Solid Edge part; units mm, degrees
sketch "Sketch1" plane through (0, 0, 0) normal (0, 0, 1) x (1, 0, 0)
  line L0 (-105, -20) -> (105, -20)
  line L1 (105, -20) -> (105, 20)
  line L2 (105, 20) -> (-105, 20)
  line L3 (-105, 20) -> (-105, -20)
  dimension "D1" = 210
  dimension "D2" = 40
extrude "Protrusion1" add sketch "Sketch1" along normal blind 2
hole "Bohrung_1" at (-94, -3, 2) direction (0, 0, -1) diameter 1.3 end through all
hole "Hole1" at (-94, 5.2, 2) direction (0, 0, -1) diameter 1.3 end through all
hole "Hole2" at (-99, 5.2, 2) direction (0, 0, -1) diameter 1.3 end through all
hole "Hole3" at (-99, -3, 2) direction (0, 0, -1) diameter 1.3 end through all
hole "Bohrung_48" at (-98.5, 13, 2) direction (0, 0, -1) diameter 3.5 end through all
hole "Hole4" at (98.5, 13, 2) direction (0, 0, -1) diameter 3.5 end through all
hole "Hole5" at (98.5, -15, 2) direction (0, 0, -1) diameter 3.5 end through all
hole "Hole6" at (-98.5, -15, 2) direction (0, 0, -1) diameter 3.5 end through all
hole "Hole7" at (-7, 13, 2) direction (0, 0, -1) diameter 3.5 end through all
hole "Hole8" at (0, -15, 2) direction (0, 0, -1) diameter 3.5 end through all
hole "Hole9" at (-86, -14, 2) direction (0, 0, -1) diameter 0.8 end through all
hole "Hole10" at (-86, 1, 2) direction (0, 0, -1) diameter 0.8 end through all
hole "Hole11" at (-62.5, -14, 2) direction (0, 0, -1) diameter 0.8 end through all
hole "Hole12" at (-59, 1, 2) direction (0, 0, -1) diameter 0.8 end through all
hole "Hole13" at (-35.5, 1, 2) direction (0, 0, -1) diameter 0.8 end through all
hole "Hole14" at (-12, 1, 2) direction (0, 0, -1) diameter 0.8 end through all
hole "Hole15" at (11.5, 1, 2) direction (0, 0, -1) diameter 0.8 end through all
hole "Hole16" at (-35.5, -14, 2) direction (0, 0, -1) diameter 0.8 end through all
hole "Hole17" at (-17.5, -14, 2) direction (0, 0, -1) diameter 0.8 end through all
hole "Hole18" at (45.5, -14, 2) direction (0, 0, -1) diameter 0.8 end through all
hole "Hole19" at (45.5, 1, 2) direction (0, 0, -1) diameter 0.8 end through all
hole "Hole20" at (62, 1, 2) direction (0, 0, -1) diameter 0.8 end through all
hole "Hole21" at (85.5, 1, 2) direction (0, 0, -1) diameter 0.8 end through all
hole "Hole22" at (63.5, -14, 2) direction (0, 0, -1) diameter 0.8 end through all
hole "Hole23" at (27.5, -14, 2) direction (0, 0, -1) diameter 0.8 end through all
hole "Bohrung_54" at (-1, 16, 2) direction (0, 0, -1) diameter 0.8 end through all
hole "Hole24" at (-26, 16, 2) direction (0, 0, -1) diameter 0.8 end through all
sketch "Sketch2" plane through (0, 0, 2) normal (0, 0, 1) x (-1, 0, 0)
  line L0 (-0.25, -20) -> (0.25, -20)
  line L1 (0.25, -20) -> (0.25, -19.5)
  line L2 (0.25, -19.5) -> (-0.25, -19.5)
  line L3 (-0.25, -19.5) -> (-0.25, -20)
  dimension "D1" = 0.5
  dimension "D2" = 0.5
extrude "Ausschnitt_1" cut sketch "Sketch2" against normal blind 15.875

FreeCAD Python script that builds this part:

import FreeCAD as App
import Part
import Sketcher
Q = App.Units.Quantity

doc = App.newDocument("Part")
body = doc.addObject("PartDesign::Body", "Body")

# Sketch on XY plane
sketch1 = body.newObject("Sketcher::SketchObject", "Sketch")
sketch1.AttachmentSupport = (doc.getObject("XY_Plane"), [""])
sketch1.MapMode = "FlatFace"
sketch1.addGeometry([
    Part.LineSegment(App.Vector(-105, 20, 0), App.Vector(-105, -20, 0)),
    Part.LineSegment(App.Vector(-105, -20, 0), App.Vector(105, -20, 0)),
    Part.LineSegment(App.Vector(105, -20, 0), App.Vector(105, 20, 0)),
    Part.LineSegment(App.Vector(105, 20, 0), App.Vector(-105, 20, 0)),
], False)
sketch1.addConstraint([
    Sketcher.Constraint("Coincident", 0, 2, 1, 1),
    Sketcher.Constraint("Coincident", 1, 2, 2, 1),
    Sketcher.Constraint("Coincident", 2, 2, 3, 1),
    Sketcher.Constraint("Coincident", 3, 2, 0, 1),
    Sketcher.Constraint("Vertical", 0),
    Sketcher.Constraint("Horizontal", 1),
    Sketcher.Constraint("Vertical", 2),
    Sketcher.Constraint("Horizontal", 3),
    Sketcher.Constraint("Symmetric", 0, 2, 2, 2, -1, 1),
    Sketcher.Constraint("DistanceX", 0, 2, -1, 1, Q("105 mm")),
    Sketcher.Constraint("DistanceY", 0, 2, 0, 1, Q("40 mm")),
])
pad1 = body.newObject("PartDesign::Pad", "Pad")
pad1.Profile = sketch1
pad1.Length = 2

# Sketch on XY plane
sketch2 = body.newObject("Sketcher::SketchObject", "Sketch001")
sketch2.AttachmentSupport = (doc.getObject("XY_Plane"), [""])
sketch2.MapMode = "FlatFace"
sketch2.AttachmentOffset = App.Placement(App.Vector(0, 0, 2), App.Rotation())
sketch2.addGeometry(Part.Circle(App.Vector(-94, -3, 0), App.Vector(0, 0, 1), 0.7), False)
sketch2.addConstraint([
    Sketcher.Constraint("Diameter", 0, Q("1.3 mm")),
    Sketcher.Constraint("DistanceX", 0, 3, -1, 1, Q("94 mm")),
    Sketcher.Constraint("DistanceY", 0, 3, -1, 1, Q("3 mm")),
])
doc.recompute()
hole = body.newObject("PartDesign::Hole", "Hole")
hole.Profile = sketch2
hole.ThreadType = "None"
hole.Diameter = 1.3
hole.DepthType = "ThroughAll"

# Sketch on XY plane
sketch3 = body.newObject("Sketcher::SketchObject", "Sketch002")
sketch3.AttachmentSupport = (doc.getObject("XY_Plane"), [""])
sketch3.MapMode = "FlatFace"
sketch3.AttachmentOffset = App.Placement(App.Vector(0, 0, 2), App.Rotation())
sketch3.addGeometry(Part.Circle(App.Vector(-94, 5.2, 0), App.Vector(0, 0, 1), 0.7), False)
sketch3.addConstraint([
    Sketcher.Constraint("Diameter", 0, Q("1.3 mm")),
    Sketcher.Constraint("DistanceX", 0, 3, -1, 1, Q("94 mm")),
    Sketcher.Constraint("DistanceY", -1, 1, 0, 3, Q("5.2 mm")),
])
doc.recompute()
hole2 = body.newObject("PartDesign::Hole", "Hole001")
hole2.Profile = sketch3
hole2.ThreadType = "None"
hole2.Diameter = 1.3
hole2.DepthType = "ThroughAll"

# Sketch on XY plane
sketch4 = body.newObject("Sketcher::SketchObject", "Sketch003")
sketch4.AttachmentSupport = (doc.getObject("XY_Plane"), [""])
sketch4.MapMode = "FlatFace"
sketch4.AttachmentOffset = App.Placement(App.Vector(0, 0, 2), App.Rotation())
sketch4.addGeometry(Part.Circle(App.Vector(-99, 5.2, 0), App.Vector(0, 0, 1), 0.7), False)
sketch4.addConstraint([
    Sketcher.Constraint("Diameter", 0, Q("1.3 mm")),
    Sketcher.Constraint("DistanceX", 0, 3, -1, 1, Q("99 mm")),
    Sketcher.Constraint("DistanceY", -1, 1, 0, 3, Q("5.2 mm")),
])
doc.recompute()
hole3 = body.newObject("PartDesign::Hole", "Hole002")
hole3.Profile = sketch4
hole3.ThreadType = "None"
hole3.Diameter = 1.3
hole3.DepthType = "ThroughAll"

# Sketch on XY plane
sketch5 = body.newObject("Sketcher::SketchObject", "Sketch004")
sketch5.AttachmentSupport = (doc.getObject("XY_Plane"), [""])
sketch5.MapMode = "FlatFace"
sketch5.AttachmentOffset = App.Placement(App.Vector(0, 0, 2), App.Rotation())
sketch5.addGeometry(Part.Circle(App.Vector(-99, -3, 0), App.Vector(0, 0, 1), 0.7), False)
sketch5.addConstraint([
    Sketcher.Constraint("Diameter", 0, Q("1.3 mm")),
    Sketcher.Constraint("DistanceX", 0, 3, -1, 1, Q("99 mm")),
    Sketcher.Constraint("DistanceY", 0, 3, -1, 1, Q("3 mm")),
])
doc.recompute()
hole4 = body.newObject("PartDesign::Hole", "Hole003")
hole4.Profile = sketch5
hole4.ThreadType = "None"
hole4.Diameter = 1.3
hole4.DepthType = "ThroughAll"

# Sketch on XY plane
sketch6 = body.newObject("Sketcher::SketchObject", "Sketch005")
sketch6.AttachmentSupport = (doc.getObject("XY_Plane"), [""])
sketch6.MapMode = "FlatFace"
sketch6.AttachmentOffset = App.Placement(App.Vector(0, 0, 2), App.Rotation())
sketch6.addGeometry(Part.Circle(App.Vector(-98.5, 13, 0), App.Vector(0, 0, 1), 1.8), False)
sketch6.addConstraint([
    Sketcher.Constraint("Diameter", 0, Q("3.5 mm")),
    Sketcher.Constraint("DistanceY", -1, 1, 0, 3, Q("13 mm")),
    Sketcher.Constraint("DistanceX", 0, 3, -1, 1, Q("98.5 mm")),
])
doc.recompute()
hole5 = body.newObject("PartDesign::Hole", "Hole004")
hole5.Profile = sketch6
hole5.ThreadType = "None"
hole5.Diameter = 3.5
hole5.DepthType = "ThroughAll"

# Sketch on XY plane
sketch7 = body.newObject("Sketcher::SketchObject", "Sketch006")
sketch7.AttachmentSupport = (doc.getObject("XY_Plane"), [""])
sketch7.MapMode = "FlatFace"
sketch7.AttachmentOffset = App.Placement(App.Vector(0, 0, 2), App.Rotation())
sketch7.addGeometry(Part.Circle(App.Vector(98.5, 13, 0), App.Vector(0, 0, 1), 1.8), False)
sketch7.addConstraint([
    Sketcher.Constraint("Diameter", 0, Q("3.5 mm")),
    Sketcher.Constraint("DistanceY", -1, 1, 0, 3, Q("13 mm")),
    Sketcher.Constraint("DistanceX", -1, 1, 0, 3, Q("98.5 mm")),
])
doc.recompute()
hole6 = body.newObject("PartDesign::Hole", "Hole005")
hole6.Profile = sketch7
hole6.ThreadType = "None"
hole6.Diameter = 3.5
hole6.DepthType = "ThroughAll"

# Sketch on XY plane
sketch8 = body.newObject("Sketcher::SketchObject", "Sketch007")
sketch8.AttachmentSupport = (doc.getObject("XY_Plane"), [""])
sketch8.MapMode = "FlatFace"
sketch8.AttachmentOffset = App.Placement(App.Vector(0, 0, 2), App.Rotation())
sketch8.addGeometry(Part.Circle(App.Vector(98.5, -15, 0), App.Vector(0, 0, 1), 1.8), False)
sketch8.addConstraint([
    Sketcher.Constraint("Diameter", 0, Q("3.5 mm")),
    Sketcher.Constraint("DistanceY", 0, 3, -1, 1, Q("15 mm")),
    Sketcher.Constraint("DistanceX", -1, 1, 0, 3, Q("98.5 mm")),
])
doc.recompute()
hole7 = body.newObject("PartDesign::Hole", "Hole006")
hole7.Profile = sketch8
hole7.ThreadType = "None"
hole7.Diameter = 3.5
hole7.DepthType = "ThroughAll"

# Sketch on XY plane
sketch9 = body.newObject("Sketcher::SketchObject", "Sketch008")
sketch9.AttachmentSupport = (doc.getObject("XY_Plane"), [""])
sketch9.MapMode = "FlatFace"
sketch9.AttachmentOffset = App.Placement(App.Vector(0, 0, 2), App.Rotation())
sketch9.addGeometry(Part.Circle(App.Vector(-98.5, -15, 0), App.Vector(0, 0, 1), 1.8), False)
sketch9.addConstraint([
    Sketcher.Constraint("Diameter", 0, Q("3.5 mm")),
    Sketcher.Constraint("DistanceY", 0, 3, -1, 1, Q("15 mm")),
    Sketcher.Constraint("DistanceX", 0, 3, -1, 1, Q("98.5 mm")),
])
doc.recompute()
hole8 = body.newObject("PartDesign::Hole", "Hole007")
hole8.Profile = sketch9
hole8.ThreadType = "None"
hole8.Diameter = 3.5
hole8.DepthType = "ThroughAll"

# Sketch on XY plane
sketch10 = body.newObject("Sketcher::SketchObject", "Sketch009")
sketch10.AttachmentSupport = (doc.getObject("XY_Plane"), [""])
sketch10.MapMode = "FlatFace"
sketch10.AttachmentOffset = App.Placement(App.Vector(0, 0, 2), App.Rotation())
sketch10.addGeometry(Part.Circle(App.Vector(-7, 13, 0), App.Vector(0, 0, 1), 1.8), False)
sketch10.addConstraint([
    Sketcher.Constraint("Diameter", 0, Q("3.5 mm")),
    Sketcher.Constraint("DistanceX", 0, 3, -1, 1, Q("7 mm")),
    Sketcher.Constraint("DistanceY", -1, 1, 0, 3, Q("13 mm")),
])
doc.recompute()
hole9 = body.newObject("PartDesign::Hole", "Hole008")
hole9.Profile = sketch10
hole9.ThreadType = "None"
hole9.Diameter = 3.5
hole9.DepthType = "ThroughAll"

# Sketch on XY plane
sketch11 = body.newObject("Sketcher::SketchObject", "Sketch010")
sketch11.AttachmentSupport = (doc.getObject("XY_Plane"), [""])
sketch11.MapMode = "FlatFace"
sketch11.AttachmentOffset = App.Placement(App.Vector(0, 0, 2), App.Rotation())
sketch11.addGeometry(Part.Circle(App.Vector(0, -15, 0), App.Vector(0, 0, 1), 1.8), False)
sketch11.addConstraint([
    Sketcher.Constraint("PointOnObject", 0, 3, -2),
    Sketcher.Constraint("Diameter", 0, Q("3.5 mm")),
    Sketcher.Constraint("DistanceY", 0, 3, -1, 1, Q("15 mm")),
])
doc.recompute()
hole10 = body.newObject("PartDesign::Hole", "Hole009")
hole10.Profile = sketch11
hole10.ThreadType = "None"
hole10.Diameter = 3.5
hole10.DepthType = "ThroughAll"

# Sketch on XY plane
sketch12 = body.newObject("Sketcher::SketchObject", "Sketch011")
sketch12.AttachmentSupport = (doc.getObject("XY_Plane"), [""])
sketch12.MapMode = "FlatFace"
sketch12.AttachmentOffset = App.Placement(App.Vector(0, 0, 2), App.Rotation())
sketch12.addGeometry(Part.Circle(App.Vector(-86, -14, 0), App.Vector(0, 0, 1), 0.4), False)
sketch12.addConstraint([
    Sketcher.Constraint("Diameter", 0, Q("0.8 mm")),
    Sketcher.Constraint("DistanceX", 0, 3, -1, 1, Q("86 mm")),
    Sketcher.Constraint("DistanceY", 0, 3, -1, 1, Q("14 mm")),
])
doc.recompute()
hole11 = body.newObject("PartDesign::Hole", "Hole010")
hole11.Profile = sketch12
hole11.ThreadType = "None"
hole11.Diameter = 0.8
hole11.DepthType = "ThroughAll"

# Sketch on XY plane
sketch13 = body.newObject("Sketcher::SketchObject", "Sketch012")
sketch13.AttachmentSupport = (doc.getObject("XY_Plane"), [""])
sketch13.MapMode = "FlatFace"
sketch13.AttachmentOffset = App.Placement(App.Vector(0, 0, 2), App.Rotation())
sketch13.addGeometry(Part.Circle(App.Vector(-86, 1, 0), App.Vector(0, 0, 1), 0.4), False)
sketch13.addConstraint([
    Sketcher.Constraint("Diameter", 0, Q("0.8 mm")),
    Sketcher.Constraint("DistanceX", 0, 3, -1, 1, Q("86 mm")),
    Sketcher.Constraint("DistanceY", -1, 1, 0, 3, Q("1 mm")),
])
doc.recompute()
hole12 = body.newObject("PartDesign::Hole", "Hole011")
hole12.Profile = sketch13
hole12.ThreadType = "None"
hole12.Diameter = 0.8
hole12.DepthType = "ThroughAll"

# Sketch on XY plane
sketch14 = body.newObject("Sketcher::SketchObject", "Sketch013")
sketch14.AttachmentSupport = (doc.getObject("XY_Plane"), [""])
sketch14.MapMode = "FlatFace"
sketch14.AttachmentOffset = App.Placement(App.Vector(0, 0, 2), App.Rotation())
sketch14.addGeometry(Part.Circle(App.Vector(-62.5, -14, 0), App.Vector(0, 0, 1), 0.4), False)
sketch14.addConstraint([
    Sketcher.Constraint("Diameter", 0, Q("0.8 mm")),
    Sketcher.Constraint("DistanceY", 0, 3, -1, 1, Q("14 mm")),
    Sketcher.Constraint("DistanceX", 0, 3, -1, 1, Q("62.5 mm")),
])
doc.recompute()
hole13 = body.newObject("PartDesign::Hole", "Hole012")
hole13.Profile = sketch14
hole13.ThreadType = "None"
hole13.Diameter = 0.8
hole13.DepthType = "ThroughAll"

# Sketch on XY plane
sketch15 = body.newObject("Sketcher::SketchObject", "Sketch014")
sketch15.AttachmentSupport = (doc.getObject("XY_Plane"), [""])
sketch15.MapMode = "FlatFace"
sketch15.AttachmentOffset = App.Placement(App.Vector(0, 0, 2), App.Rotation())
sketch15.addGeometry(Part.Circle(App.Vector(-59, 1, 0), App.Vector(0, 0, 1), 0.4), False)
sketch15.addConstraint([
    Sketcher.Constraint("Diameter", 0, Q("0.8 mm")),
    Sketcher.Constraint("DistanceX", 0, 3, -1, 1, Q("59 mm")),
    Sketcher.Constraint("DistanceY", -1, 1, 0, 3, Q("1 mm")),
])
doc.recompute()
hole14 = body.newObject("PartDesign::Hole", "Hole013")
hole14.Profile = sketch15
hole14.ThreadType = "None"
hole14.Diameter = 0.8
hole14.DepthType = "ThroughAll"

# Sketch on XY plane
sketch16 = body.newObject("Sketcher::SketchObject", "Sketch015")
sketch16.AttachmentSupport = (doc.getObject("XY_Plane"), [""])
sketch16.MapMode = "FlatFace"
sketch16.AttachmentOffset = App.Placement(App.Vector(0, 0, 2), App.Rotation())
sketch16.addGeometry(Part.Circle(App.Vector(-35.5, 1, 0), App.Vector(0, 0, 1), 0.4), False)
sketch16.addConstraint([
    Sketcher.Constraint("Diameter", 0, Q("0.8 mm")),
    Sketcher.Constraint("DistanceY", -1, 1, 0, 3, Q("1 mm")),
    Sketcher.Constraint("DistanceX", 0, 3, -1, 1, Q("35.5 mm")),
])
doc.recompute()
hole15 = body.newObject("PartDesign::Hole", "Hole014")
hole15.Profile = sketch16
hole15.ThreadType = "None"
hole15.Diameter = 0.8
hole15.DepthType = "ThroughAll"

# Sketch on XY plane
sketch17 = body.newObject("Sketcher::SketchObject", "Sketch016")
sketch17.AttachmentSupport = (doc.getObject("XY_Plane"), [""])
sketch17.MapMode = "FlatFace"
sketch17.AttachmentOffset = App.Placement(App.Vector(0, 0, 2), App.Rotation())
sketch17.addGeometry(Part.Circle(App.Vector(-12, 1, 0), App.Vector(0, 0, 1), 0.4), False)
sketch17.addConstraint([
    Sketcher.Constraint("Diameter", 0, Q("0.8 mm")),
    Sketcher.Constraint("DistanceX", 0, 3, -1, 1, Q("12 mm")),
    Sketcher.Constraint("DistanceY", -1, 1, 0, 3, Q("1 mm")),
])
doc.recompute()
hole16 = body.newObject("PartDesign::Hole", "Hole015")
hole16.Profile = sketch17
hole16.ThreadType = "None"
hole16.Diameter = 0.8
hole16.DepthType = "ThroughAll"

# Sketch on XY plane
sketch18 = body.newObject("Sketcher::SketchObject", "Sketch017")
sketch18.AttachmentSupport = (doc.getObject("XY_Plane"), [""])
sketch18.MapMode = "FlatFace"
sketch18.AttachmentOffset = App.Placement(App.Vector(0, 0, 2), App.Rotation())
sketch18.addGeometry(Part.Circle(App.Vector(11.5, 1, 0), App.Vector(0, 0, 1), 0.4), False)
sketch18.addConstraint([
    Sketcher.Constraint("Diameter", 0, Q("0.8 mm")),
    Sketcher.Constraint("DistanceY", -1, 1, 0, 3, Q("1 mm")),
    Sketcher.Constraint("DistanceX", -1, 1, 0, 3, Q("11.5 mm")),
])
doc.recompute()
hole17 = body.newObject("PartDesign::Hole", "Hole016")
hole17.Profile = sketch18
hole17.ThreadType = "None"
hole17.Diameter = 0.8
hole17.DepthType = "ThroughAll"

# Sketch on XY plane
sketch19 = body.newObject("Sketcher::SketchObject", "Sketch018")
sketch19.AttachmentSupport = (doc.getObject("XY_Plane"), [""])
sketch19.MapMode = "FlatFace"
sketch19.AttachmentOffset = App.Placement(App.Vector(0, 0, 2), App.Rotation())
sketch19.addGeometry(Part.Circle(App.Vector(-35.5, -14, 0), App.Vector(0, 0, 1), 0.4), False)
sketch19.addConstraint([
    Sketcher.Constraint("Diameter", 0, Q("0.8 mm")),
    Sketcher.Constraint("DistanceY", 0, 3, -1, 1, Q("14 mm")),
    Sketcher.Constraint("DistanceX", 0, 3, -1, 1, Q("35.5 mm")),
])
doc.recompute()
hole18 = body.newObject("PartDesign::Hole", "Hole017")
hole18.Profile = sketch19
hole18.ThreadType = "None"
hole18.Diameter = 0.8
hole18.DepthType = "ThroughAll"

# Sketch on XY plane
sketch20 = body.newObject("Sketcher::SketchObject", "Sketch019")
sketch20.AttachmentSupport = (doc.getObject("XY_Plane"), [""])
sketch20.MapMode = "FlatFace"
sketch20.AttachmentOffset = App.Placement(App.Vector(0, 0, 2), App.Rotation())
sketch20.addGeometry(Part.Circle(App.Vector(-17.5, -14, 0), App.Vector(0, 0, 1), 0.4), False)
sketch20.addConstraint([
    Sketcher.Constraint("Diameter", 0, Q("0.8 mm")),
    Sketcher.Constraint("DistanceY", 0, 3, -1, 1, Q("14 mm")),
    Sketcher.Constraint("DistanceX", 0, 3, -1, 1, Q("17.5 mm")),
])
doc.recompute()
hole19 = body.newObject("PartDesign::Hole", "Hole018")
hole19.Profile = sketch20
hole19.ThreadType = "None"
hole19.Diameter = 0.8
hole19.DepthType = "ThroughAll"

# Sketch on XY plane
sketch21 = body.newObject("Sketcher::SketchObject", "Sketch020")
sketch21.AttachmentSupport = (doc.getObject("XY_Plane"), [""])
sketch21.MapMode = "FlatFace"
sketch21.AttachmentOffset = App.Placement(App.Vector(0, 0, 2), App.Rotation())
sketch21.addGeometry(Part.Circle(App.Vector(45.5, -14, 0), App.Vector(0, 0, 1), 0.4), False)
sketch21.addConstraint([
    Sketcher.Constraint("Diameter", 0, Q("0.8 mm")),
    Sketcher.Constraint("DistanceY", 0, 3, -1, 1, Q("14 mm")),
    Sketcher.Constraint("DistanceX", -1, 1, 0, 3, Q("45.5 mm")),
])
doc.recompute()
hole20 = body.newObject("PartDesign::Hole", "Hole019")
hole20.Profile = sketch21
hole20.ThreadType = "None"
hole20.Diameter = 0.8
hole20.DepthType = "ThroughAll"

# Sketch on XY plane
sketch22 = body.newObject("Sketcher::SketchObject", "Sketch021")
sketch22.AttachmentSupport = (doc.getObject("XY_Plane"), [""])
sketch22.MapMode = "FlatFace"
sketch22.AttachmentOffset = App.Placement(App.Vector(0, 0, 2), App.Rotation())
sketch22.addGeometry(Part.Circle(App.Vector(45.5, 1, 0), App.Vector(0, 0, 1), 0.4), False)
sketch22.addConstraint([
    Sketcher.Constraint("Diameter", 0, Q("0.8 mm")),
    Sketcher.Constraint("DistanceY", -1, 1, 0, 3, Q("1 mm")),
    Sketcher.Constraint("DistanceX", -1, 1, 0, 3, Q("45.5 mm")),
])
doc.recompute()
hole21 = body.newObject("PartDesign::Hole", "Hole020")
hole21.Profile = sketch22
hole21.ThreadType = "None"
hole21.Diameter = 0.8
hole21.DepthType = "ThroughAll"

# Sketch on XY plane
sketch23 = body.newObject("Sketcher::SketchObject", "Sketch022")
sketch23.AttachmentSupport = (doc.getObject("XY_Plane"), [""])
sketch23.MapMode = "FlatFace"
sketch23.AttachmentOffset = App.Placement(App.Vector(0, 0, 2), App.Rotation())
sketch23.addGeometry(Part.Circle(App.Vector(62, 1, 0), App.Vector(0, 0, 1), 0.4), False)
sketch23.addConstraint([
    Sketcher.Constraint("Diameter", 0, Q("0.8 mm")),
    Sketcher.Constraint("DistanceX", -1, 1, 0, 3, Q("62 mm")),
    Sketcher.Constraint("DistanceY", -1, 1, 0, 3, Q("1 mm")),
])
doc.recompute()
hole22 = body.newObject("PartDesign::Hole", "Hole021")
hole22.Profile = sketch23
hole22.ThreadType = "None"
hole22.Diameter = 0.8
hole22.DepthType = "ThroughAll"

# Sketch on XY plane
sketch24 = body.newObject("Sketcher::SketchObject", "Sketch023")
sketch24.AttachmentSupport = (doc.getObject("XY_Plane"), [""])
sketch24.MapMode = "FlatFace"
sketch24.AttachmentOffset = App.Placement(App.Vector(0, 0, 2), App.Rotation())
sketch24.addGeometry(Part.Circle(App.Vector(85.5, 1, 0), App.Vector(0, 0, 1), 0.4), False)
sketch24.addConstraint([
    Sketcher.Constraint("Diameter", 0, Q("0.8 mm")),
    Sketcher.Constraint("DistanceY", -1, 1, 0, 3, Q("1 mm")),
    Sketcher.Constraint("DistanceX", -1, 1, 0, 3, Q("85.5 mm")),
])
doc.recompute()
hole23 = body.newObject("PartDesign::Hole", "Hole022")
hole23.Profile = sketch24
hole23.ThreadType = "None"
hole23.Diameter = 0.8
hole23.DepthType = "ThroughAll"

# Sketch on XY plane
sketch25 = body.newObject("Sketcher::SketchObject", "Sketch024")
sketch25.AttachmentSupport = (doc.getObject("XY_Plane"), [""])
sketch25.MapMode = "FlatFace"
sketch25.AttachmentOffset = App.Placement(App.Vector(0, 0, 2), App.Rotation())
sketch25.addGeometry(Part.Circle(App.Vector(63.5, -14, 0), App.Vector(0, 0, 1), 0.4), False)
sketch25.addConstraint([
    Sketcher.Constraint("Diameter", 0, Q("0.8 mm")),
    Sketcher.Constraint("DistanceY", 0, 3, -1, 1, Q("14 mm")),
    Sketcher.Constraint("DistanceX", -1, 1, 0, 3, Q("63.5 mm")),
])
doc.recompute()
hole24 = body.newObject("PartDesign::Hole", "Hole023")
hole24.Profile = sketch25
hole24.ThreadType = "None"
hole24.Diameter = 0.8
hole24.DepthType = "ThroughAll"

# Sketch on XY plane
sketch26 = body.newObject("Sketcher::SketchObject", "Sketch025")
sketch26.AttachmentSupport = (doc.getObject("XY_Plane"), [""])
sketch26.MapMode = "FlatFace"
sketch26.AttachmentOffset = App.Placement(App.Vector(0, 0, 2), App.Rotation())
sketch26.addGeometry(Part.Circle(App.Vector(27.5, -14, 0), App.Vector(0, 0, 1), 0.4), False)
sketch26.addConstraint([
    Sketcher.Constraint("Diameter", 0, Q("0.8 mm")),
    Sketcher.Constraint("DistanceY", 0, 3, -1, 1, Q("14 mm")),
    Sketcher.Constraint("DistanceX", -1, 1, 0, 3, Q("27.5 mm")),
])
doc.recompute()
hole25 = body.newObject("PartDesign::Hole", "Hole024")
hole25.Profile = sketch26
hole25.ThreadType = "None"
hole25.Diameter = 0.8
hole25.DepthType = "ThroughAll"

# Sketch on XY plane
sketch27 = body.newObject("Sketcher::SketchObject", "Sketch026")
sketch27.AttachmentSupport = (doc.getObject("XY_Plane"), [""])
sketch27.MapMode = "FlatFace"
sketch27.AttachmentOffset = App.Placement(App.Vector(0, 0, 2), App.Rotation())
sketch27.addGeometry(Part.Circle(App.Vector(-1, 16, 0), App.Vector(0, 0, 1), 0.4), False)
sketch27.addConstraint([
    Sketcher.Constraint("Diameter", 0, Q("0.8 mm")),
    Sketcher.Constraint("DistanceX", 0, 3, -1, 1, Q("1 mm")),
    Sketcher.Constraint("DistanceY", -1, 1, 0, 3, Q("16 mm")),
])
doc.recompute()
hole26 = body.newObject("PartDesign::Hole", "Hole025")
hole26.Profile = sketch27
hole26.ThreadType = "None"
hole26.Diameter = 0.8
hole26.DepthType = "ThroughAll"

# Sketch on XY plane
sketch28 = body.newObject("Sketcher::SketchObject", "Sketch027")
sketch28.AttachmentSupport = (doc.getObject("XY_Plane"), [""])
sketch28.MapMode = "FlatFace"
sketch28.AttachmentOffset = App.Placement(App.Vector(0, 0, 2), App.Rotation())
sketch28.addGeometry(Part.Circle(App.Vector(-26, 16, 0), App.Vector(0, 0, 1), 0.4), False)
sketch28.addConstraint([
    Sketcher.Constraint("Diameter", 0, Q("0.8 mm")),
    Sketcher.Constraint("DistanceX", 0, 3, -1, 1, Q("26 mm")),
    Sketcher.Constraint("DistanceY", -1, 1, 0, 3, Q("16 mm")),
])
doc.recompute()
hole27 = body.newObject("PartDesign::Hole", "Hole026")
hole27.Profile = sketch28
hole27.ThreadType = "None"
hole27.Diameter = 0.8
hole27.DepthType = "ThroughAll"

# Sketch on XY plane
sketch29 = body.newObject("Sketcher::SketchObject", "Sketch028")
sketch29.AttachmentSupport = (doc.getObject("XY_Plane"), [""])
sketch29.MapMode = "FlatFace"
sketch29.AttachmentOffset = App.Placement(App.Vector(0, 0, 2), App.Rotation())
sketch29.addGeometry([
    Part.LineSegment(App.Vector(0.2, 19.5, 0), App.Vector(0.2, 20, 0)),
    Part.LineSegment(App.Vector(0.2, 20, 0), App.Vector(-0.2, 20, 0)),
    Part.LineSegment(App.Vector(-0.2, 20, 0), App.Vector(-0.2, 19.5, 0)),
    Part.LineSegment(App.Vector(-0.2, 19.5, 0), App.Vector(0.2, 19.5, 0)),
], False)
sketch29.addConstraint([
    Sketcher.Constraint("Coincident", 0, 2, 1, 1),
    Sketcher.Constraint("Coincident", 1, 2, 2, 1),
    Sketcher.Constraint("Coincident", 2, 2, 3, 1),
    Sketcher.Constraint("Coincident", 3, 2, 0, 1),
    Sketcher.Constraint("Vertical", 0),
    Sketcher.Constraint("Horizontal", 1),
    Sketcher.Constraint("Vertical", 2),
    Sketcher.Constraint("Horizontal", 3),
    Sketcher.Constraint("Equal", 3, 0),
    Sketcher.Constraint("DistanceX", -1, 1, 0, 2, Q("0.25 mm")),
    Sketcher.Constraint("DistanceX", 1, 2, -1, 1, Q("0.25 mm")),
    Sketcher.Constraint("DistanceY", -1, 1, 0, 2, Q("20 mm")),
])
pocket1 = body.newObject("PartDesign::Pocket", "Pocket")
pocket1.Profile = sketch29
pocket1.Length = 15.875

doc.recompute()
